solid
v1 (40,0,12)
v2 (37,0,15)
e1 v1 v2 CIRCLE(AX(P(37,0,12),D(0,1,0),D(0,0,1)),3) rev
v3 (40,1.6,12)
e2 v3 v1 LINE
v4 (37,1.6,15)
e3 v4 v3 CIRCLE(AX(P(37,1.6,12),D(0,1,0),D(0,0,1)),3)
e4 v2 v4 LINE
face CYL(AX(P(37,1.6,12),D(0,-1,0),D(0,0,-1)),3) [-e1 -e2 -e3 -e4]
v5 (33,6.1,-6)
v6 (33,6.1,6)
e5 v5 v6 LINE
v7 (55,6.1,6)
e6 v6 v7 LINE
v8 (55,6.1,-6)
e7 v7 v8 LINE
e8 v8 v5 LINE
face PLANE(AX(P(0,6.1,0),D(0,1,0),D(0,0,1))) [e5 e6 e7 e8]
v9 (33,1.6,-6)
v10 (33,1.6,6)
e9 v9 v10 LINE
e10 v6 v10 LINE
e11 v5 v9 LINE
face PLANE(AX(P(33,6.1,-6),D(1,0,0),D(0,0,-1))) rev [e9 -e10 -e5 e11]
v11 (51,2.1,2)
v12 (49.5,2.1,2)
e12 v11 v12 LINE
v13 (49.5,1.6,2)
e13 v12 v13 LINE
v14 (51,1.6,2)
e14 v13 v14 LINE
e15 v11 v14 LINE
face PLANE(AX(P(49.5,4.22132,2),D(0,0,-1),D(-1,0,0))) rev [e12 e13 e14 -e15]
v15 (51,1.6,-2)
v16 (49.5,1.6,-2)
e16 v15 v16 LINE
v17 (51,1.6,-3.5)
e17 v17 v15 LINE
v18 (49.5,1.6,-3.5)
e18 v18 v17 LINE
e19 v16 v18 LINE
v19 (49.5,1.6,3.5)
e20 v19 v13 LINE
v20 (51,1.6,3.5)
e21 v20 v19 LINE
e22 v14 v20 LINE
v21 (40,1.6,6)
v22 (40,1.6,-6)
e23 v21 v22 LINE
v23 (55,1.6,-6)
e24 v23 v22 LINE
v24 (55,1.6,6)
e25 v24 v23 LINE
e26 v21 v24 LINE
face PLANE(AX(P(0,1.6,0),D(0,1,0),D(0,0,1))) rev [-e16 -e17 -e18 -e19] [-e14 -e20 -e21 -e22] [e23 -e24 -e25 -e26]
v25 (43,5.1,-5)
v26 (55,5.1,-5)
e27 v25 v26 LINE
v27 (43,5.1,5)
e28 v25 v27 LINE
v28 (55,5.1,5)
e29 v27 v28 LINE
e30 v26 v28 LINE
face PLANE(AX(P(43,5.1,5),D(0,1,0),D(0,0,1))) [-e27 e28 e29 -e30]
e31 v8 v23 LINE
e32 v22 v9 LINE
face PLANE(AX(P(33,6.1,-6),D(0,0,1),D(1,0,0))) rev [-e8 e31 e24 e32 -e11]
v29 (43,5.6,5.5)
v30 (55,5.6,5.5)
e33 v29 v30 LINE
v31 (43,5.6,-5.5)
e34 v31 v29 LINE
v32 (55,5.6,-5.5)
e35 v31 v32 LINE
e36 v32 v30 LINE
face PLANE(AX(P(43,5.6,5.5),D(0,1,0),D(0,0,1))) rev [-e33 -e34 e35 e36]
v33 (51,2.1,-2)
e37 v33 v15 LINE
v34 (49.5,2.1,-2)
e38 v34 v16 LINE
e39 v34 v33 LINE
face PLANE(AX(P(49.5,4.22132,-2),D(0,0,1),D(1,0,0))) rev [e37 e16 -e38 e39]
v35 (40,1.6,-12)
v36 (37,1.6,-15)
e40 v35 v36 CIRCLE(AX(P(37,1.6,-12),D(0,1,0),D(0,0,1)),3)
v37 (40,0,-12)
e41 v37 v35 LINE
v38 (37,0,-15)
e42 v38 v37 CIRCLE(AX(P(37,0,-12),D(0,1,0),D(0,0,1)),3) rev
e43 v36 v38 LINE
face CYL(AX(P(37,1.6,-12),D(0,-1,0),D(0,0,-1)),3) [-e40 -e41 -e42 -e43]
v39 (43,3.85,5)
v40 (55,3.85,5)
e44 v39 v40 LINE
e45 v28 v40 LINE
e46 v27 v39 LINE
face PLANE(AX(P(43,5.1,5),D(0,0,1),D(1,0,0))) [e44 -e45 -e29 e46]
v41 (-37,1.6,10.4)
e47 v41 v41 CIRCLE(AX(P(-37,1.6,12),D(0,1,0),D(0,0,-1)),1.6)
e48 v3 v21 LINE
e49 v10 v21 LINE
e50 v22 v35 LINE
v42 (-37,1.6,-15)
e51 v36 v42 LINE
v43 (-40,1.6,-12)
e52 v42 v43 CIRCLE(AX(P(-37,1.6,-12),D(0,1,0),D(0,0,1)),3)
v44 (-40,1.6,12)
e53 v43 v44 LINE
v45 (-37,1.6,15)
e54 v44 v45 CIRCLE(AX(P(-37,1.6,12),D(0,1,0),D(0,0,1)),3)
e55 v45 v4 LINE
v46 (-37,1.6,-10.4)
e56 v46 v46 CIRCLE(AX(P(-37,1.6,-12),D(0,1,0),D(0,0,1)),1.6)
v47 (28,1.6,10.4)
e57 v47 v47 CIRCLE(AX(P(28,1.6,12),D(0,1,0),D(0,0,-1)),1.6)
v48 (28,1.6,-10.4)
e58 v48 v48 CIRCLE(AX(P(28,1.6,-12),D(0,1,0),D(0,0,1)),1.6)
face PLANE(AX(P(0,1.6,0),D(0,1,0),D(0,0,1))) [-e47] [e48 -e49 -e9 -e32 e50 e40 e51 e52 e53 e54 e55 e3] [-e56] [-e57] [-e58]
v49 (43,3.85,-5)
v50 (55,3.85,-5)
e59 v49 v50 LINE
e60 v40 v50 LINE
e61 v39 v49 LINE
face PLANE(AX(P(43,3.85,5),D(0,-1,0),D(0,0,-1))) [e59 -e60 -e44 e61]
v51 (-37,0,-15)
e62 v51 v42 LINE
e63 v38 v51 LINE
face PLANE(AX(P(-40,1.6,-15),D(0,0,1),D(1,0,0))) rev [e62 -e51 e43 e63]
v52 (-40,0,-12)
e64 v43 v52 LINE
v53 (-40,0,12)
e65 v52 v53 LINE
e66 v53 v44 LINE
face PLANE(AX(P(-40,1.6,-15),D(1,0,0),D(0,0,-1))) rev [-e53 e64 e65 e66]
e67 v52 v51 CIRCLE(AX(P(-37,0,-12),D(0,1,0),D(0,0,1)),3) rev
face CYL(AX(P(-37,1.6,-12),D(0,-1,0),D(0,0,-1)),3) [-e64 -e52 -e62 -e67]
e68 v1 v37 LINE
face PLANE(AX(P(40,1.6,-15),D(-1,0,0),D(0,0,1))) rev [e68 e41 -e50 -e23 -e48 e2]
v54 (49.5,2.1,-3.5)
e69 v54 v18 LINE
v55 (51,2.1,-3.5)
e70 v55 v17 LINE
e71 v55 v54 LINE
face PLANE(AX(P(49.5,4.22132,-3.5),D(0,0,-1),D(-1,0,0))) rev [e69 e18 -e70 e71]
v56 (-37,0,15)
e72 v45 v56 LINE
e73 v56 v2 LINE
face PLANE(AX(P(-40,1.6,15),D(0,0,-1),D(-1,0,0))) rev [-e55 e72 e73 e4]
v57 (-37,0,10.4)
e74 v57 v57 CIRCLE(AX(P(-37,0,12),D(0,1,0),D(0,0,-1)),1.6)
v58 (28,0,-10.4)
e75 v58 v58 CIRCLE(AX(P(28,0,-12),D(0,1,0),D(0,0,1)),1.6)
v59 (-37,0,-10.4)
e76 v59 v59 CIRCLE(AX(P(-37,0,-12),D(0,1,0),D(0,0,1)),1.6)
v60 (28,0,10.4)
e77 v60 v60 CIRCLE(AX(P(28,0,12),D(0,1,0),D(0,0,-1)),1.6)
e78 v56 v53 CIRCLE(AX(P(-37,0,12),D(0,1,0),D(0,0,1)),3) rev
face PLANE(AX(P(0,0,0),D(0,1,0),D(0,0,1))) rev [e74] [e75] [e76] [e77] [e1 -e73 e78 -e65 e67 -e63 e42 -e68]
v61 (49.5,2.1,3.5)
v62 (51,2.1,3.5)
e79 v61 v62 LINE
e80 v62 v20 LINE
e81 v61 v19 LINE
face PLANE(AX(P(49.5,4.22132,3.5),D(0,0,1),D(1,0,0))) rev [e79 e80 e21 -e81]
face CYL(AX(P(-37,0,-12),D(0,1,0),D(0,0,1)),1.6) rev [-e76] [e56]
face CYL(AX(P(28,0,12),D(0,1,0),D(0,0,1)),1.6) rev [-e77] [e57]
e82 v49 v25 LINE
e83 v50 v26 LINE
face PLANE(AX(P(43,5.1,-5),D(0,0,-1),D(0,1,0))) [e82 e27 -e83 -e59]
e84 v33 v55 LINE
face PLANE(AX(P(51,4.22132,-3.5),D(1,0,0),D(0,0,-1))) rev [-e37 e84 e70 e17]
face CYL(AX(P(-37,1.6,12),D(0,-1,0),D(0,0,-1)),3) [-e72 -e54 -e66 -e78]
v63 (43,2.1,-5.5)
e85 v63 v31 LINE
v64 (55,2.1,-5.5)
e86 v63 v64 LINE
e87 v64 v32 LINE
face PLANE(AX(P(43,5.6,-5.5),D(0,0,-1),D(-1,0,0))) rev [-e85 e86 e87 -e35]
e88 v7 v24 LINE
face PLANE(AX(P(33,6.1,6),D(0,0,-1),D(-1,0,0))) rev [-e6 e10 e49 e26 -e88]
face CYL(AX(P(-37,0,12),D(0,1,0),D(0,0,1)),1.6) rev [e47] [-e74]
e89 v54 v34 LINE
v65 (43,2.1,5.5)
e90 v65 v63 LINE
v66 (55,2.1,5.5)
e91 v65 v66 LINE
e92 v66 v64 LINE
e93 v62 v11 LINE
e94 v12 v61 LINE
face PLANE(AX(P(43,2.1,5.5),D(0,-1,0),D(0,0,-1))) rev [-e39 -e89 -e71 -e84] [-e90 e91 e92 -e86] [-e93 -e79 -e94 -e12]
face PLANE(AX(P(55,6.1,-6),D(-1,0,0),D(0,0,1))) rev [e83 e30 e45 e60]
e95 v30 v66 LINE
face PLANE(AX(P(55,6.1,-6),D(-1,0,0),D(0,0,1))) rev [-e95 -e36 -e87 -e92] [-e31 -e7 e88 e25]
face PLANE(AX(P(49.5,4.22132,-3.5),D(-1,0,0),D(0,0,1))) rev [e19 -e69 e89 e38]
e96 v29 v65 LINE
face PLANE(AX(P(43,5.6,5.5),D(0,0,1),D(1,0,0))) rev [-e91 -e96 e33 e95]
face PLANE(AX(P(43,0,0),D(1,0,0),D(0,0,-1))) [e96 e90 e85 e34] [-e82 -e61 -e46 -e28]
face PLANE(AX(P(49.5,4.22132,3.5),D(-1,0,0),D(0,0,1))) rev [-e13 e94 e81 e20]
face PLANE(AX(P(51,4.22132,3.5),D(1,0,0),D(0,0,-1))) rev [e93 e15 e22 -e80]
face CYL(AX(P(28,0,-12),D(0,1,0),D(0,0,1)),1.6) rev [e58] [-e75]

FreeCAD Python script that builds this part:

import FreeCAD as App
import Part
import Sketcher


def edges_at(feature, points):
    """Names of the edges that pass closest to the given points."""
    edges = feature.Shape.Edges
    near = lambda p: min(range(len(edges)), key=lambda i: edges[i].distToShape(Part.Vertex(*p))[0])
    return sorted({f"Edge{near(p) + 1}" for p in points})

doc = App.newDocument("Part")
body = doc.addObject("PartDesign::Body", "Body")

# Sketch on XZ plane
sketch1 = body.newObject("Sketcher::SketchObject", "Sketch")
sketch1.AttachmentSupport = (doc.getObject("XZ_Plane"), [""])
sketch1.MapMode = "FlatFace"
sketch1.addGeometry([
    Part.LineSegment(App.Vector(-40, -15, 0), App.Vector(-40, 15, 0)),
    Part.LineSegment(App.Vector(-40, 15, 0), App.Vector(40, 15, 0)),
    Part.LineSegment(App.Vector(40, 15, 0), App.Vector(40, -15, 0)),
    Part.LineSegment(App.Vector(40, -15, 0), App.Vector(-40, -15, 0)),
], False)
sketch1.addConstraint([
    Sketcher.Constraint("Coincident", 0, 2, 1, 1),
    Sketcher.Constraint("Coincident", 1, 2, 2, 1),
    Sketcher.Constraint("Coincident", 2, 2, 3, 1),
    Sketcher.Constraint("Coincident", 3, 2, 0, 1),
    Sketcher.Constraint("Vertical", 0),
    Sketcher.Constraint("Horizontal", 1),
    Sketcher.Constraint("Vertical", 2),
    Sketcher.Constraint("Horizontal", 3),
    Sketcher.Constraint("Symmetric", 0, 2, 2, 2, -1, 1),
    Sketcher.Constraint("DistanceX", 1, 1, 1, 2, 80.0),
    Sketcher.Constraint("DistanceY", 0, 1, 0, 2, 30.0),
])
pad1 = body.newObject("PartDesign::Pad", "Pad")
pad1.Profile = sketch1
pad1.Length = 1.6
pad1.Reversed = True

# Sketch on XZ plane
sketch2 = body.newObject("Sketcher::SketchObject", "Sketch001")
sketch2.AttachmentSupport = (doc.getObject("XZ_Plane"), [""])
sketch2.MapMode = "FlatFace"
sketch2.AttachmentOffset = App.Placement(App.Vector(0, 0, -1.6), App.Rotation())
sketch2.addGeometry([
    Part.LineSegment(App.Vector(33, -6, 0), App.Vector(33, 6, 0)),
    Part.LineSegment(App.Vector(33, 6, 0), App.Vector(55, 6, 0)),
    Part.LineSegment(App.Vector(55, 6, 0), App.Vector(55, -6, 0)),
    Part.LineSegment(App.Vector(55, -6, 0), App.Vector(33, -6, 0)),
], False)
sketch2.addConstraint([
    Sketcher.Constraint("Coincident", 0, 2, 1, 1),
    Sketcher.Constraint("Coincident", 1, 2, 2, 1),
    Sketcher.Constraint("Coincident", 2, 2, 3, 1),
    Sketcher.Constraint("Coincident", 3, 2, 0, 1),
    Sketcher.Constraint("Vertical", 0),
    Sketcher.Constraint("Horizontal", 1),
    Sketcher.Constraint("Vertical", 2),
    Sketcher.Constraint("Horizontal", 3),
    Sketcher.Constraint("DistanceX", 1, 1, 1, 2, 22.0),
    Sketcher.Constraint("DistanceY", 0, 1, 0, 2, 12.0),
    Sketcher.Constraint("DistanceX", -1, 1, 0, 2, 33.0),
    Sketcher.Constraint("DistanceY", -1, 1, 0, 2, 6.0),
])
pad2 = body.newObject("PartDesign::Pad", "Pad001")
pad2.Profile = sketch2
pad2.Length = 4.5
pad2.Reversed = True

# Sketch on XZ plane
sketch3 = body.newObject("Sketcher::SketchObject", "Sketch002")
sketch3.AttachmentSupport = (doc.getObject("XZ_Plane"), [""])
sketch3.MapMode = "FlatFace"
sketch3.AttachmentOffset = App.Placement(App.Vector(0, 0, -1.6), App.Rotation())
sketch3.addGeometry([
    Part.Circle(App.Vector(-37, -12, 0), App.Vector(0, 0, 1), 1.6),
    Part.Circle(App.Vector(28, -12, 0), App.Vector(0, 0, 1), 1.6),
    Part.Circle(App.Vector(-37, 12, 0), App.Vector(0, 0, 1), 1.6),
    Part.Circle(App.Vector(28, 12, 0), App.Vector(0, 0, 1), 1.6),
], False)
sketch3.addConstraint([
    Sketcher.Constraint("Equal", 0, 1),
    Sketcher.Constraint("Equal", 1, 2),
    Sketcher.Constraint("Equal", 2, 3),
    Sketcher.Constraint("Symmetric", 0, 3, 2, 3, -1),
    Sketcher.Constraint("Symmetric", 1, 3, 3, 3, -1),
    Sketcher.Constraint("Horizontal", 0, 3, 1, 3),
    Sketcher.Constraint("Diameter", 0, 3.2),
    Sketcher.Constraint("DistanceX", 0, 3, -1, 1, 37.0),
    Sketcher.Constraint("DistanceY", 0, 3, -1, 1, 12.0),
    Sketcher.Constraint("DistanceX", -1, 1, 1, 3, 28.0),
])
pocket1 = body.newObject("PartDesign::Pocket", "Pocket")
pocket1.Profile = sketch3
pocket1.Type = "ThroughAll"
pocket1.Reversed = True

# Sketch on YZ plane
sketch4 = body.newObject("Sketcher::SketchObject", "Sketch003")
sketch4.AttachmentSupport = (doc.getObject("YZ_Plane"), [""])
sketch4.MapMode = "FlatFace"
sketch4.AttachmentOffset = App.Placement(App.Vector(0, 0, 55), App.Rotation())
sketch4.addGeometry([
    Part.LineSegment(App.Vector(5.6, 5.5, 0), App.Vector(2.1, 5.5, 0)),  # 0
    Part.LineSegment(App.Vector(2.1, 5.5, 0), App.Vector(2.1, -5.5, 0)),  # 1
    Part.LineSegment(App.Vector(2.1, -5.5, 0), App.Vector(5.6, -5.5, 0)),  # 2
    Part.LineSegment(App.Vector(5.6, -5.5, 0), App.Vector(5.6, 5.5, 0)),  # 3
    Part.LineSegment(App.Vector(3.9, -5, 0), App.Vector(3.9, 5, 0)),  # 4
    Part.LineSegment(App.Vector(3.9, 5, 0), App.Vector(5.1, 5, 0)),  # 5
    Part.LineSegment(App.Vector(5.1, 5, 0), App.Vector(5.1, -5, 0)),  # 6
    Part.LineSegment(App.Vector(5.1, -5, 0), App.Vector(3.9, -5, 0)),  # 7
], False)
sketch4.addConstraint([
    Sketcher.Constraint("Coincident", 0, 2, 1, 1),
    Sketcher.Constraint("Coincident", 1, 2, 2, 1),
    Sketcher.Constraint("Coincident", 2, 2, 3, 1),
    Sketcher.Constraint("Coincident", 3, 2, 0, 1),
    Sketcher.Constraint("Coincident", 4, 2, 5, 1),
    Sketcher.Constraint("Coincident", 5, 2, 6, 1),
    Sketcher.Constraint("Coincident", 6, 2, 7, 1),
    Sketcher.Constraint("Coincident", 7, 2, 4, 1),
    Sketcher.Constraint("Horizontal", 0),
    Sketcher.Constraint("Vertical", 1),
    Sketcher.Constraint("Horizontal", 2),
    Sketcher.Constraint("Vertical", 3),
    Sketcher.Constraint("Vertical", 4),
    Sketcher.Constraint("Horizontal", 5),
    Sketcher.Constraint("Vertical", 6),
    Sketcher.Constraint("Horizontal", 7),
    Sketcher.Constraint("DistanceY", 1, 2, 1, 1, 11.0),
    Sketcher.Constraint("DistanceY", 4, 1, 4, 2, 10.0),
    Sketcher.Constraint("DistanceX", 0, 2, 0, 1, 3.5),
    Sketcher.Constraint("DistanceY", -1, 1, 4, 2, 5.0),
    Sketcher.Constraint("DistanceX", 0, 2, 5, 2, 3.0),
    Sketcher.Constraint("DistanceX", 5, 1, 5, 2, 1.25),
    Sketcher.Constraint("DistanceX", -1, 1, 0, 2, 2.1),
    Sketcher.Constraint("DistanceY", -1, 1, 0, 2, 5.5),
])
pocket2 = body.newObject("PartDesign::Pocket", "Pocket001")
pocket2.Profile = sketch4
pocket2.Length = 12
doc.recompute()

fillet = body.newObject("PartDesign::Fillet", "Fillet")
fillet.Base = (pocket2, edges_at(pocket2, [
    (40, 0.8, 15),
    (-40, 0.8, 15),
    (-40, 0.8, -15),
    (40, 0.8, -15),
]))
fillet.Radius = 3

# Sketch on XZ plane
sketch5 = body.newObject("Sketcher::SketchObject", "Sketch004")
sketch5.AttachmentSupport = (doc.getObject("XZ_Plane"), [""])
sketch5.MapMode = "FlatFace"
sketch5.AttachmentOffset = App.Placement(App.Vector(0, 0, -1.6), App.Rotation())
sketch5.addGeometry([
    Part.LineSegment(App.Vector(49.5, -2, 0), App.Vector(49.5, -3.5, 0)),  # 0
    Part.LineSegment(App.Vector(49.5, -3.5, 0), App.Vector(51, -3.5, 0)),  # 1
    Part.LineSegment(App.Vector(51, -3.5, 0), App.Vector(51, -2, 0)),  # 2
    Part.LineSegment(App.Vector(51, -2, 0), App.Vector(49.5, -2, 0)),  # 3
    Part.LineSegment(App.Vector(49.5, 3.5, 0), App.Vector(49.5, 2, 0)),  # 4
    Part.LineSegment(App.Vector(49.5, 2, 0), App.Vector(51, 2, 0)),  # 5
    Part.LineSegment(App.Vector(51, 2, 0), App.Vector(51, 3.5, 0)),  # 6
    Part.LineSegment(App.Vector(51, 3.5, 0), App.Vector(49.5, 3.5, 0)),  # 7
], False)
sketch5.addConstraint([
    Sketcher.Constraint("Coincident", 0, 2, 1, 1),
    Sketcher.Constraint("Coincident", 1, 2, 2, 1),
    Sketcher.Constraint("Coincident", 2, 2, 3, 1),
    Sketcher.Constraint("Coincident", 3, 2, 0, 1),
    Sketcher.Constraint("Coincident", 4, 2, 5, 1),
    Sketcher.Constraint("Coincident", 5, 2, 6, 1),
    Sketcher.Constraint("Coincident", 6, 2, 7, 1),
    Sketcher.Constraint("Coincident", 7, 2, 4, 1),
    Sketcher.Constraint("Vertical", 0),
    Sketcher.Constraint("Horizontal", 1),
    Sketcher.Constraint("Vertical", 2),
    Sketcher.Constraint("Horizontal", 3),
    Sketcher.Constraint("Vertical", 4),
    Sketcher.Constraint("Horizontal", 5),
    Sketcher.Constraint("Vertical", 6),
    Sketcher.Constraint("Horizontal", 7),
    Sketcher.Constraint("Symmetric", 3, 2, 4, 2, -1),
    Sketcher.Constraint("Symmetric", 1, 2, 6, 2, -1),
    Sketcher.Constraint("Equal", 7, 0),
    Sketcher.Constraint("DistanceX", 1, 1, 1, 2, 1.5),
    Sketcher.Constraint("DistanceX", -1, 1, 1, 2, 51.0),
    Sketcher.Constraint("DistanceY", 2, 2, -1, 1, 2.0),
])
pocket3 = body.newObject("PartDesign::Pocket", "Pocket002")
pocket3.Profile = sketch5
pocket3.Length = 0.5

doc.recompute()
